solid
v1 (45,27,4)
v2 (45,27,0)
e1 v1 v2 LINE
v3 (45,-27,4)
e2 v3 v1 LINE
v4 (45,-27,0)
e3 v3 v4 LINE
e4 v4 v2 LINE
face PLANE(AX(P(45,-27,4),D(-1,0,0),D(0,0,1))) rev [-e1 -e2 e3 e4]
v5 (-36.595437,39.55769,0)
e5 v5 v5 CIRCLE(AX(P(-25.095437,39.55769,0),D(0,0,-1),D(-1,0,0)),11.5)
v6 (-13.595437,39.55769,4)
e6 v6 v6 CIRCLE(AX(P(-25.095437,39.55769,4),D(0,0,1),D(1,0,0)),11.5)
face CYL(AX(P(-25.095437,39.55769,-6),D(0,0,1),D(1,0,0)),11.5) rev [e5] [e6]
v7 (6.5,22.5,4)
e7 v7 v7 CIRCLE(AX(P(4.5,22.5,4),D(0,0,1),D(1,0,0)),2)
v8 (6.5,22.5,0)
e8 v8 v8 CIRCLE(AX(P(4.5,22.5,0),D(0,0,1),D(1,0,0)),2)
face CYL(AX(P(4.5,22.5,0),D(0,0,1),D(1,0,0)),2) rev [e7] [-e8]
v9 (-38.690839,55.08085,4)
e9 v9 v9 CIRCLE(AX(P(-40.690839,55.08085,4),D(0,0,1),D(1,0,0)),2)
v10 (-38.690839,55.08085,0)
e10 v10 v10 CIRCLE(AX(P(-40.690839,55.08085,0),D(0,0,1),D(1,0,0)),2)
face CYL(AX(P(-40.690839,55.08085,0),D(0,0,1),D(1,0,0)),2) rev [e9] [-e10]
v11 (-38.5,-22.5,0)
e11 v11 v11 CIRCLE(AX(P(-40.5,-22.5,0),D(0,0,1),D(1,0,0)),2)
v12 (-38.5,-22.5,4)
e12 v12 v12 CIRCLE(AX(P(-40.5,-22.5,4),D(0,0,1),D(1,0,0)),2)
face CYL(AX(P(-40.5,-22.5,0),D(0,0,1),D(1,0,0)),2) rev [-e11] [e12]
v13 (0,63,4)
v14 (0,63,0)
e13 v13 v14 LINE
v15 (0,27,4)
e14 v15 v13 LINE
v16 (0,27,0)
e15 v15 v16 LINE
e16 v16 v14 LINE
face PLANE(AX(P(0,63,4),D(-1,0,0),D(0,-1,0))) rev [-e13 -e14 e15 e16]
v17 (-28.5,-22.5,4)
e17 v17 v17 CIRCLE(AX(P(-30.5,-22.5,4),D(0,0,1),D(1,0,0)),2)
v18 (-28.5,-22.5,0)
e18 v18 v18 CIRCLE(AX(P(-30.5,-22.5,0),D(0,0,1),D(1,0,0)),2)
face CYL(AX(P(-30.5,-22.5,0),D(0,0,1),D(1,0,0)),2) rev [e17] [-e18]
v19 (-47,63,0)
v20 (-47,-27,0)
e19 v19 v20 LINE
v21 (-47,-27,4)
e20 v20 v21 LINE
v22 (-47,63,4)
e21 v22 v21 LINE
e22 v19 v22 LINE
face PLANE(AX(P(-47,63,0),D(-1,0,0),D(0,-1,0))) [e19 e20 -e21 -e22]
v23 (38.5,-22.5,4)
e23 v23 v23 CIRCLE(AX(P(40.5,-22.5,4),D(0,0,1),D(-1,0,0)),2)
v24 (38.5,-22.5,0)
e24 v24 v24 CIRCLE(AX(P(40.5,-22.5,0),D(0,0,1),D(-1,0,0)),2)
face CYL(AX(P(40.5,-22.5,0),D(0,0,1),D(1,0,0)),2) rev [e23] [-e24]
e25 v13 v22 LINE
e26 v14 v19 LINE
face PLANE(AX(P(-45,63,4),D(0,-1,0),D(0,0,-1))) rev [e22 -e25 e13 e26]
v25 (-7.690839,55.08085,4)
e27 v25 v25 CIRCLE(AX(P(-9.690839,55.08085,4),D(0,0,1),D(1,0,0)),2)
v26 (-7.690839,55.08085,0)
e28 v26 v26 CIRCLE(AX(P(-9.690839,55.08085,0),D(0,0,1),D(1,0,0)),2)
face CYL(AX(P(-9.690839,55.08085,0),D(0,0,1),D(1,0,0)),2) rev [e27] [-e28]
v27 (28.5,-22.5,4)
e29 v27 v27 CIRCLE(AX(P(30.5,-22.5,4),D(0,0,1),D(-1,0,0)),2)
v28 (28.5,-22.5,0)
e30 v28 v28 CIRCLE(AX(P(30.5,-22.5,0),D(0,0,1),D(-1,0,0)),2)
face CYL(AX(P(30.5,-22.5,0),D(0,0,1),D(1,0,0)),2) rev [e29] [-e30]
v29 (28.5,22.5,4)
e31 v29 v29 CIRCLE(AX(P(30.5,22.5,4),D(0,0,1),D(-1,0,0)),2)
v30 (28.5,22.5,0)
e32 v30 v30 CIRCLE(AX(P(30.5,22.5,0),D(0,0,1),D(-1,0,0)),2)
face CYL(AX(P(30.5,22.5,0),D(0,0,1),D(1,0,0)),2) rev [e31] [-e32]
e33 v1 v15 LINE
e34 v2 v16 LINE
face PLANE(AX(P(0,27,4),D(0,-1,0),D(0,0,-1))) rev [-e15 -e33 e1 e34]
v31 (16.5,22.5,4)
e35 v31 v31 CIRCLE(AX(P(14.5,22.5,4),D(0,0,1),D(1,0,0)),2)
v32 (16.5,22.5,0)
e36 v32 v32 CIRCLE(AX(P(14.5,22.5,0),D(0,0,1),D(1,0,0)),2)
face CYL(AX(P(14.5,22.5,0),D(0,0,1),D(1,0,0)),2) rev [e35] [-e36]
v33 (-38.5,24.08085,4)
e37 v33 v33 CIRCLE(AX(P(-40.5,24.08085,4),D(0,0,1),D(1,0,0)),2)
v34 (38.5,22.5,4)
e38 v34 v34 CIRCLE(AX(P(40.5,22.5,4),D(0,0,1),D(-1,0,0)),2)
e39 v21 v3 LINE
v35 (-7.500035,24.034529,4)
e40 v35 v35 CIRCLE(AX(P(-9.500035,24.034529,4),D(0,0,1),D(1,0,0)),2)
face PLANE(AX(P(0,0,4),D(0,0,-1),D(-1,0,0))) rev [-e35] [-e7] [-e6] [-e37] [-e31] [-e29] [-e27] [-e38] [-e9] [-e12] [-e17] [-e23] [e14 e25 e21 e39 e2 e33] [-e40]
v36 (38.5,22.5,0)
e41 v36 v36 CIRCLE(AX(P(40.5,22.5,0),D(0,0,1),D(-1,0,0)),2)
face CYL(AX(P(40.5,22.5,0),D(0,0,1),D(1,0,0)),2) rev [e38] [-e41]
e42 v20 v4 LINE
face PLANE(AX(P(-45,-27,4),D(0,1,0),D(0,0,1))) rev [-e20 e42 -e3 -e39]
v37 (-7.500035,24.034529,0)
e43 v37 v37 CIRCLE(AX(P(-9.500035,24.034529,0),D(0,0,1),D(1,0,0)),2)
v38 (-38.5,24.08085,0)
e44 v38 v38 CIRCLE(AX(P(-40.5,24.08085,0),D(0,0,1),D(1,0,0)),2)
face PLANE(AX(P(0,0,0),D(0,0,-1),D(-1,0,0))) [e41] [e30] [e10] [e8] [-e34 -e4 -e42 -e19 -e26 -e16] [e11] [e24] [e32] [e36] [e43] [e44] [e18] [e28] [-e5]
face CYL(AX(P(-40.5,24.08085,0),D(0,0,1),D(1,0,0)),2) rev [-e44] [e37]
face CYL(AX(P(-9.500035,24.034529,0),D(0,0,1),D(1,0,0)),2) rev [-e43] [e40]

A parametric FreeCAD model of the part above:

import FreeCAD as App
import Part
import Sketcher

V = App.Vector
Q = App.Units.Quantity


def add_polygon(sketch, points):
    """Adds a closed chain of lines whose ends are joined by coincident constraints."""
    first, n = sketch.GeometryCount, len(points)
    for a, b in zip(points, points[1:] + points[:1]):
        sketch.addGeometry(Part.LineSegment(App.Vector(*a, 0), App.Vector(*b, 0)), False)
    for i in range(n):
        sketch.addConstraint(Sketcher.Constraint("Coincident", first + i, 2, first + (i + 1) % n, 1))

doc = App.newDocument("Part")
body = doc.addObject("PartDesign::Body", "Body")

# Sketch on XY plane
sketch1 = doc.addObject("Sketcher::SketchObject", "Sketch")
body.addObject(sketch1)
sketch1.AttachmentSupport = (doc.XY_Plane, [""])
sketch1.MapMode = "FlatFace"
add_polygon(sketch1, [(-45, 63), (-45, -27), (45, -27), (45, 27), (0, 27), (0, 63)])  # lines 0-5
sketch1.addConstraint([
    Sketcher.Constraint("Vertical", 0),
    Sketcher.Constraint("Horizontal", 1),
    Sketcher.Constraint("Vertical", 2),
    Sketcher.Constraint("Horizontal", 3),
    Sketcher.Constraint("Vertical", 4),
    Sketcher.Constraint("Horizontal", 5),
    Sketcher.Constraint("Symmetric", 0, 2, 2, 2, -1, 1),
    Sketcher.Constraint("PointOnObject", 3, 2, -2),
    Sketcher.Constraint("Equal", 1, 0),
    Sketcher.Constraint("DistanceX", 1, 1, 1, 2, Q("90 mm")),
    Sketcher.Constraint("DistanceY", 2, 1, 2, 2, Q("54 mm")),
])
pad1 = doc.addObject("PartDesign::Pad", "Pad")
body.addObject(pad1)
pad1.Profile = sketch1
pad1.Length = 4

# Sketch on XY plane
sketch2 = doc.addObject("Sketcher::SketchObject", "Sketch001")
body.addObject(sketch2)
sketch2.AttachmentSupport = (doc.XY_Plane, [""])
sketch2.MapMode = "FlatFace"
sketch2.AttachmentOffset = App.Placement(V(0, 0, 4), App.Rotation())
sketch2.addGeometry([
    Part.Circle(V(-40.5, -22.5, 0), V(0, 0, 1), 2),  # 0
    Part.Circle(V(-30.5, -22.5, 0), V(0, 0, 1), 2),  # 1
    Part.Circle(V(30.5, -22.5, 0), V(0, 0, 1), 2),  # 2
    Part.Circle(V(40.5, -22.5, 0), V(0, 0, 1), 2),  # 3
    Part.Circle(V(30.5, 22.5, 0), V(0, 0, 1), 2),  # 4
    Part.Circle(V(40.5, 22.5, 0), V(0, 0, 1), 2),  # 5
], False)
sketch2.addConstraint([
    Sketcher.Constraint("Equal", 0, 1),
    Sketcher.Constraint("Equal", 1, 2),
    Sketcher.Constraint("Equal", 2, 3),
    Sketcher.Constraint("Equal", 3, 4),
    Sketcher.Constraint("Equal", 4, 5),
    Sketcher.Constraint("Symmetric", 1, 3, 4, 3, -1, 1),
    Sketcher.Constraint("Symmetric", 0, 3, 5, 3, -1, 1),
    Sketcher.Constraint("Symmetric", 1, 3, 2, 3, -2),
    Sketcher.Constraint("Symmetric", 0, 3, 3, 3, -2),
    Sketcher.Constraint("Horizontal", 0, 3, 1, 3),
    Sketcher.Constraint("Diameter", 0, Q("4 mm")),
    Sketcher.Constraint("DistanceX", 0, 3, 1, 3, Q("10 mm")),
    Sketcher.Constraint("DistanceX", 1, 3, 2, 3, Q("61 mm")),
    Sketcher.Constraint("DistanceY", 2, 3, 4, 3, Q("45 mm")),
])
pocket1 = doc.addObject("PartDesign::Pocket", "Pocket")
body.addObject(pocket1)
pocket1.Profile = sketch2
pocket1.Length = 4

# Sketch on XY plane
sketch3 = doc.addObject("Sketcher::SketchObject", "Sketch002")
body.addObject(sketch3)
sketch3.AttachmentSupport = (doc.XY_Plane, [""])
sketch3.MapMode = "FlatFace"
sketch3.AttachmentOffset = App.Placement(V(0, 0, 4), App.Rotation())
sketch3.addGeometry([
    Part.Circle(V(-40.5, 24.1, 0), V(0, 0, 1), 2),
    Part.Circle(V(-9.5, 24, 0), V(0, 0, 1), 2),
], False)
sketch3.addConstraint([
    Sketcher.Constraint("Equal", 0, 1),
    Sketcher.Constraint("Diameter", 0, Q("4 mm")),
    Sketcher.Constraint("DistanceX", 0, 3, -1, 1, Q("40.5 mm")),
    Sketcher.Constraint("DistanceY", -1, 1, 0, 3, Q("24.08085 mm")),
    Sketcher.Constraint("DistanceY", -1, 1, 1, 3, Q("24.034529 mm")),
    Sketcher.Constraint("DistanceX", 1, 3, -1, 1, Q("9.500035 mm")),
])
pocket2 = doc.addObject("PartDesign::Pocket", "Pocket001")
body.addObject(pocket2)
pocket2.Profile = sketch3
pocket2.Length = 4

# Sketch on XY plane
sketch4 = doc.addObject("Sketcher::SketchObject", "Sketch003")
body.addObject(sketch4)
sketch4.AttachmentSupport = (doc.XY_Plane, [""])
sketch4.MapMode = "FlatFace"
sketch4.AttachmentOffset = App.Placement(V(0, 0, 4), App.Rotation())
sketch4.addGeometry([
    Part.Circle(V(-40.7, 55.1, 0), V(0, 0, 1), 2),
    Part.Circle(V(-9.7, 55.1, 0), V(0, 0, 1), 2),
], False)
sketch4.addConstraint([
    Sketcher.Constraint("Equal", 0, 1),
    Sketcher.Constraint("Horizontal", 0, 3, 1, 3),
    Sketcher.Constraint("Diameter", 0, Q("4 mm")),
    Sketcher.Constraint("DistanceX", 0, 3, 1, 3, Q("31 mm")),
    Sketcher.Constraint("DistanceX", 0, 3, -1, 1, Q("40.690839 mm")),
    Sketcher.Constraint("DistanceY", -1, 1, 0, 3, Q("55.08085 mm")),
])
pocket3 = doc.addObject("PartDesign::Pocket", "Pocket002")
body.addObject(pocket3)
pocket3.Profile = sketch4
pocket3.Length = 4

# Sketch on XY plane
sketch5 = doc.addObject("Sketcher::SketchObject", "Sketch004")
body.addObject(sketch5)
sketch5.AttachmentSupport = (doc.XY_Plane, [""])
sketch5.MapMode = "FlatFace"
sketch5.AttachmentOffset = App.Placement(V(0, 0, 4), App.Rotation())
add_polygon(sketch5, [(-47, 63), (-47, -27), (-45, -27), (-45, 63)])  # lines 0-3
sketch5.addConstraint([
    Sketcher.Constraint("Vertical", 0),
    Sketcher.Constraint("Horizontal", 1),
    Sketcher.Constraint("Vertical", 2),
    Sketcher.Constraint("Horizontal", 3),
    Sketcher.Constraint("DistanceX", 1, 1, 1, 2, Q("2 mm")),
    Sketcher.Constraint("DistanceY", 0, 2, 0, 1, Q("90 mm")),
    Sketcher.Constraint("DistanceX", 0, 2, -1, 1, Q("47 mm")),
    Sketcher.Constraint("DistanceY", 0, 2, -1, 1, Q("27 mm")),
])
pad2 = doc.addObject("PartDesign::Pad", "Pad001")
body.addObject(pad2)
pad2.Profile = sketch5
pad2.Length = 4
pad2.Reversed = True

# Sketch on XY plane
sketch6 = doc.addObject("Sketcher::SketchObject", "Sketch005")
body.addObject(sketch6)
sketch6.AttachmentSupport = (doc.XY_Plane, [""])
sketch6.MapMode = "FlatFace"
sketch6.AttachmentOffset = App.Placement(V(0, 0, 4), App.Rotation())
sketch6.addGeometry([
    Part.Circle(V(4.5, 22.5, 0), V(0, 0, 1), 2),
    Part.Circle(V(14.5, 22.5, 0), V(0, 0, 1), 2),
], False)
sketch6.addConstraint([
    Sketcher.Constraint("Equal", 0, 1),
    Sketcher.Constraint("Horizontal", 0, 3, 1, 3),
    Sketcher.Constraint("Diameter", 0, Q("4 mm")),
    Sketcher.Constraint("DistanceX", 0, 3, 1, 3, Q("10 mm")),
    Sketcher.Constraint("DistanceX", -1, 1, 0, 3, Q("4.5 mm")),
    Sketcher.Constraint("DistanceY", -1, 1, 0, 3, Q("22.5 mm")),
])
pocket4 = doc.addObject("PartDesign::Pocket", "Pocket003")
body.addObject(pocket4)
pocket4.Profile = sketch6
pocket4.Length = 4

# Sketch on XY plane
sketch7 = doc.addObject("Sketcher::SketchObject", "Sketch006")
body.addObject(sketch7)
sketch7.AttachmentSupport = (doc.XY_Plane, [""])
sketch7.MapMode = "FlatFace"
sketch7.AttachmentOffset = App.Placement(V(0, 0, 4), App.Rotation())
sketch7.addGeometry(Part.Circle(V(-25, 40, 0), V(0, 0, 1), 12), False)
sketch7.addConstraint([
    Sketcher.Constraint("Diameter", 0, Q("23 mm")),
    Sketcher.Constraint("DistanceY", -1, 1, 0, 3, Q("39.55769 mm")),
    Sketcher.Constraint("DistanceX", 0, 3, -1, 1, Q("25.095437 mm")),
])
pocket5 = doc.addObject("PartDesign::Pocket", "Pocket004")
body.addObject(pocket5)
pocket5.Profile = sketch7
pocket5.Length = 10

doc.recompute()
